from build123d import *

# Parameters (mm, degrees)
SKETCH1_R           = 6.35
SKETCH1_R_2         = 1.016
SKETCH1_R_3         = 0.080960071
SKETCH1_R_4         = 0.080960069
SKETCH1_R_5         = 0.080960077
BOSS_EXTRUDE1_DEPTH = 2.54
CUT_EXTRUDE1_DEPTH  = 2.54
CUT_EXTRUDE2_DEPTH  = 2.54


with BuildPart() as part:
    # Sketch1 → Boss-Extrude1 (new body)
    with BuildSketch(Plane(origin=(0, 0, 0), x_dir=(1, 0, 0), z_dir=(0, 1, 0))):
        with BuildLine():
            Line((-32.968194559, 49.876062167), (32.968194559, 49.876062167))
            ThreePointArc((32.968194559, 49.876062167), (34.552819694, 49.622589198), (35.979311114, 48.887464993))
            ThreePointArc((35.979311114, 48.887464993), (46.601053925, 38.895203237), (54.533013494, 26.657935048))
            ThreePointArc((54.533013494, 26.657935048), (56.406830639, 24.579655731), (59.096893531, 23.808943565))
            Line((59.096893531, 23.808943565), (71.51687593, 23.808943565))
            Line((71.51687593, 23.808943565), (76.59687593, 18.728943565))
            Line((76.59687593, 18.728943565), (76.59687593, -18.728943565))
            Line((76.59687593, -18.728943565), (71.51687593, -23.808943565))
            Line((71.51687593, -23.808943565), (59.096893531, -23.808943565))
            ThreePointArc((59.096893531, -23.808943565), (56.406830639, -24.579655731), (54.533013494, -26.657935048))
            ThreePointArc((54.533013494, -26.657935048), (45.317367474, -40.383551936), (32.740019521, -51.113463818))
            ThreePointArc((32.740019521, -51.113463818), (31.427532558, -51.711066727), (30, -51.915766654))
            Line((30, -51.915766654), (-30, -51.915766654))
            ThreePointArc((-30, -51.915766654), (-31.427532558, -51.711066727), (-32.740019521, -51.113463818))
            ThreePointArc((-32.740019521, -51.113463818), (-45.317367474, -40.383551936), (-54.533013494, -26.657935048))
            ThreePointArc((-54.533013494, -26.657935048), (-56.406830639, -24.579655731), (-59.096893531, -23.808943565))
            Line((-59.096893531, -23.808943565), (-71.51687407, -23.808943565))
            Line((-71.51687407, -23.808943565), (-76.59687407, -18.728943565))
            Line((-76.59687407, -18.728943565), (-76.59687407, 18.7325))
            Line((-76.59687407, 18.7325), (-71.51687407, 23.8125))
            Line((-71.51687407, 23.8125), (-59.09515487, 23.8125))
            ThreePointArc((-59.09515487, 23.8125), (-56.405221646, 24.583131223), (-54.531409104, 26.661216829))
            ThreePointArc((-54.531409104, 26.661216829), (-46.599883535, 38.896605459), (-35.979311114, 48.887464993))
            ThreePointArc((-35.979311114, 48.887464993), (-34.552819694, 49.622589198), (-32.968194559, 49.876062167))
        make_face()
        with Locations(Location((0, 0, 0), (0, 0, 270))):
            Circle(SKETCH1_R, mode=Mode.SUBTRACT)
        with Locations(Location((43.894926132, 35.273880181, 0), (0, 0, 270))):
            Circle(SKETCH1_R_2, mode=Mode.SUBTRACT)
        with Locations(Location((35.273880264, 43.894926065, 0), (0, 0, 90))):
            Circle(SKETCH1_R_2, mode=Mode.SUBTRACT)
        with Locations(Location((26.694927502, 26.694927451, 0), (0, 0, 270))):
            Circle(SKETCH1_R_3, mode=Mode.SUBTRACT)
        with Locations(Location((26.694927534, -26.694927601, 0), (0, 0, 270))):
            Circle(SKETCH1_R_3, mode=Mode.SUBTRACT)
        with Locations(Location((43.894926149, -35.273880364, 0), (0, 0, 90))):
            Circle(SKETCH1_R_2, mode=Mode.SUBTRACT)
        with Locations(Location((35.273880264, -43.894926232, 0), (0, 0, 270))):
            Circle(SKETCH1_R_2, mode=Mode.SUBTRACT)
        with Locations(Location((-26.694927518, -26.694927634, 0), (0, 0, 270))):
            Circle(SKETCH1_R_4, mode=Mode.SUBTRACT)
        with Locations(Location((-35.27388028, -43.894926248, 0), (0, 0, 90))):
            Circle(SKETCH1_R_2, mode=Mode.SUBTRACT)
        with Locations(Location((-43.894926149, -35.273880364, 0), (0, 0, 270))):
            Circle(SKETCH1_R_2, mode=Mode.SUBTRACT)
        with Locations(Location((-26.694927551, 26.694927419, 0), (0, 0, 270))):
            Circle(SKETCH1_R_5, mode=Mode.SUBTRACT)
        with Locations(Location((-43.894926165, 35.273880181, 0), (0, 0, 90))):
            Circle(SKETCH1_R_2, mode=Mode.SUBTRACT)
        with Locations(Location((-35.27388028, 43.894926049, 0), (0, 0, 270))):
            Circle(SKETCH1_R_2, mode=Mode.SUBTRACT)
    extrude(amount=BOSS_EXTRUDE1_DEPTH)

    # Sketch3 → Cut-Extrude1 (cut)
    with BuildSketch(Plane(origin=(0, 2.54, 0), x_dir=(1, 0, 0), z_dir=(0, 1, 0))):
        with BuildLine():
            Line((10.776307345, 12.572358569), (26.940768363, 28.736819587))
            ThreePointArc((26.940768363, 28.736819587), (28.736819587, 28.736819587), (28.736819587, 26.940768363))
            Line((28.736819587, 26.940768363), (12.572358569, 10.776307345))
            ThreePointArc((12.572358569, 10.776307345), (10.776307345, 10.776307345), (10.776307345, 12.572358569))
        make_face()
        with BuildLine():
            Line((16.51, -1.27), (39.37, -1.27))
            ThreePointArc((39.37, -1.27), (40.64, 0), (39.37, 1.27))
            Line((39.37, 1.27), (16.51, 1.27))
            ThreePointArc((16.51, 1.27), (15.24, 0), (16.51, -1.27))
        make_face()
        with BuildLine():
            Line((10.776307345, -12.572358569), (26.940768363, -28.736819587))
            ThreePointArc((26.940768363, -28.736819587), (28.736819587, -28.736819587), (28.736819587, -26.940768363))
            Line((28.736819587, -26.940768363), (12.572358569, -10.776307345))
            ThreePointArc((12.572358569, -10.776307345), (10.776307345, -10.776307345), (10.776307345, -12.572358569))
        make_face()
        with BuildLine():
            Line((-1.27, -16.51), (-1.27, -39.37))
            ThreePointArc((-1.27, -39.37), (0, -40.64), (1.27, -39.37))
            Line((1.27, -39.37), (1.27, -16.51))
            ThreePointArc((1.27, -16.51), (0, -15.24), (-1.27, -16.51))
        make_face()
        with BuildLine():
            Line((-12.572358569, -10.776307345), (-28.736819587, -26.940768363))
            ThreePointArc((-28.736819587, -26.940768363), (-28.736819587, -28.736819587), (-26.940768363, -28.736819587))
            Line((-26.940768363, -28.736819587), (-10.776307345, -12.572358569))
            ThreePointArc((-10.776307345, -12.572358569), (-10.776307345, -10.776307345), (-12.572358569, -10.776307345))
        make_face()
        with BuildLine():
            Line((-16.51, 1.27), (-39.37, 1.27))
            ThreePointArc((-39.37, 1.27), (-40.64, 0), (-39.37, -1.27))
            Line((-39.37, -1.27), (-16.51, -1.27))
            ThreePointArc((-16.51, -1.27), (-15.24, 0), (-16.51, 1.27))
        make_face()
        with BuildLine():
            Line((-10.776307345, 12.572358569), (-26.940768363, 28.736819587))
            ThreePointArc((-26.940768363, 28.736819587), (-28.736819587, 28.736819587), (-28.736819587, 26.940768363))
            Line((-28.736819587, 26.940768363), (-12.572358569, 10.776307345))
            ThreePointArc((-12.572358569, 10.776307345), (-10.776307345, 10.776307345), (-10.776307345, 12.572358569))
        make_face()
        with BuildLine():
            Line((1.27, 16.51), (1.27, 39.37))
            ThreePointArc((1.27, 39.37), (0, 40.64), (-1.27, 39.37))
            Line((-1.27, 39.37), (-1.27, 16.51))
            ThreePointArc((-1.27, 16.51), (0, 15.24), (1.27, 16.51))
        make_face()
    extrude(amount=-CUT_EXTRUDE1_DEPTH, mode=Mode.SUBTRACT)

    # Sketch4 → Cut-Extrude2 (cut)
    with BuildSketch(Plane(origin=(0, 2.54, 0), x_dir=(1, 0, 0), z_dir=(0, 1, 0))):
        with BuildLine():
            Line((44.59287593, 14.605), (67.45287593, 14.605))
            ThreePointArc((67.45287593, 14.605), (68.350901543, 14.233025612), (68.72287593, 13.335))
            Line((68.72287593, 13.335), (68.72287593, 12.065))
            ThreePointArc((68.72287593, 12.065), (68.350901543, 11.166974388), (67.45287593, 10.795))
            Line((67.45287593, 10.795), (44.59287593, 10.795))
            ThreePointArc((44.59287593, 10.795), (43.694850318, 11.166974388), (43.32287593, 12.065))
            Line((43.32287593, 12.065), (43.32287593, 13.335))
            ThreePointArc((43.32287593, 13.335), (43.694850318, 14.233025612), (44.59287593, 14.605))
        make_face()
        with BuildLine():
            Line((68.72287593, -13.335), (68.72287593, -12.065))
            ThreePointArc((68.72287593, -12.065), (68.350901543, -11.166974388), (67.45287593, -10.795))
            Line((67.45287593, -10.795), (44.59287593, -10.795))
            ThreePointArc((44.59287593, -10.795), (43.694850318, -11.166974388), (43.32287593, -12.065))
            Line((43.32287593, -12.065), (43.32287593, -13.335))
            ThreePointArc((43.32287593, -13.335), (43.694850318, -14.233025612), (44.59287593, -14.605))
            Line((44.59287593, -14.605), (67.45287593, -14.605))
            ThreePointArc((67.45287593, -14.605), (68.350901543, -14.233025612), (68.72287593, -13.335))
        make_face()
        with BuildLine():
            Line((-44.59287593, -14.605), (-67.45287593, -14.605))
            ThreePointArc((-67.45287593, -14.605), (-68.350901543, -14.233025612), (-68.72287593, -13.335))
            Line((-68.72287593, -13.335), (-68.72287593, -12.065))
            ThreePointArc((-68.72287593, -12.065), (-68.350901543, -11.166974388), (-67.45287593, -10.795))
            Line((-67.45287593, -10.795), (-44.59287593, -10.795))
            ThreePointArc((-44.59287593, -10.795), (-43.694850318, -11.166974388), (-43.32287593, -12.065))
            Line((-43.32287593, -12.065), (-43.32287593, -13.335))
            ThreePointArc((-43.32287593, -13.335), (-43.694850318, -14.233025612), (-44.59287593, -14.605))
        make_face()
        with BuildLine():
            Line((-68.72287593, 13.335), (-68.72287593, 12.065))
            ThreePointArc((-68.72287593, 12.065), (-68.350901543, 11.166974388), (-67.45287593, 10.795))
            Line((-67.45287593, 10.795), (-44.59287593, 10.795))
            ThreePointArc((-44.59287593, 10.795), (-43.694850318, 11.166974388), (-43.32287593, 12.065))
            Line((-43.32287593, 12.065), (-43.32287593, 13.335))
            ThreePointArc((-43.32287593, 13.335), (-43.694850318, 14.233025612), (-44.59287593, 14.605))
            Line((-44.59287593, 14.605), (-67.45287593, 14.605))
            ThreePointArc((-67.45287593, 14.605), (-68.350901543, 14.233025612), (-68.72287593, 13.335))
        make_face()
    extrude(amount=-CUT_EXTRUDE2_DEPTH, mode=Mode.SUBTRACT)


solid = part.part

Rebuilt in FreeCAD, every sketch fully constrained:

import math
import FreeCAD as App
import Part
import Sketcher
from FreeCAD import Vector
Q = App.Units.Quantity

doc = App.newDocument("Part")
body = doc.addObject("PartDesign::Body", "Body")

sketch1 = doc.addObject("Sketcher::SketchObject", "Sketch")
body.addObject(sketch1)
sketch1.AttachmentSupport = (doc.XZ_Plane, [""])
sketch1.MapMode = "FlatFace"
sketch1.addGeometry(Part.LineSegment(Vector(32.97, -49.88, 0), Vector(-32.97, -49.88, 0)), False)
sketch1.addGeometry(Part.ArcOfCircle(Part.Circle(Vector(-32.97, -44.8, 0), Vector(0, 0, 1), 5.08), math.radians(-126), math.radians(-90)), False)
sketch1.addGeometry(Part.ArcOfCircle(Part.Circle(Vector(0, 0, 0), Vector(0, 0, 1), 60.7), math.radians(-154), math.radians(-126)), False)
sketch1.addGeometry(Part.ArcOfCircle(Part.Circle(Vector(-59.1, -28.89, 0), Vector(0, 0, 1), 5.08), math.radians(26), math.radians(90)), False)
sketch1.addGeometry(Part.LineSegment(Vector(-59.1, -23.81, 0), Vector(-71.52, -23.81, 0)), False)
sketch1.addGeometry(Part.LineSegment(Vector(-71.52, -23.81, 0), Vector(-76.6, -18.73, 0)), False)
sketch1.addGeometry(Part.LineSegment(Vector(-76.6, -18.73, 0), Vector(-76.6, 18.73, 0)), False)
sketch1.addGeometry(Part.LineSegment(Vector(-76.6, 18.73, 0), Vector(-71.52, 23.81, 0)), False)
sketch1.addGeometry(Part.LineSegment(Vector(-71.52, 23.81, 0), Vector(-59.1, 23.81, 0)), False)
sketch1.addGeometry(Part.ArcOfCircle(Part.Circle(Vector(-59.1, 28.89, 0), Vector(0, 0, 1), 5.08), math.radians(-90), math.radians(-26)), False)
sketch1.addGeometry(Part.ArcOfCircle(Part.Circle(Vector(0, 0, 0), Vector(0, 0, 1), 60.7), math.radians(123), math.radians(154)), False)
sketch1.addGeometry(Part.ArcOfCircle(Part.Circle(Vector(-30, 46.84, 0), Vector(0, 0, 1), 5.08), math.radians(90), math.radians(123)), False)
sketch1.addGeometry(Part.LineSegment(Vector(-30, 51.92, 0), Vector(30, 51.92, 0)), False)
sketch1.addGeometry(Part.ArcOfCircle(Part.Circle(Vector(30, 46.84, 0), Vector(0, 0, 1), 5.08), math.radians(57), math.radians(90)), False)
sketch1.addGeometry(Part.ArcOfCircle(Part.Circle(Vector(0, 0, 0), Vector(0, 0, 1), 60.7), math.radians(26), math.radians(57)), False)
sketch1.addGeometry(Part.ArcOfCircle(Part.Circle(Vector(59.1, 28.89, 0), Vector(0, 0, 1), 5.08), math.radians(-154), math.radians(-90)), False)
sketch1.addGeometry(Part.LineSegment(Vector(59.1, 23.81, 0), Vector(71.52, 23.81, 0)), False)
sketch1.addGeometry(Part.LineSegment(Vector(71.52, 23.81, 0), Vector(76.6, 18.73, 0)), False)
sketch1.addGeometry(Part.LineSegment(Vector(76.6, 18.73, 0), Vector(76.6, -18.73, 0)), False)
sketch1.addGeometry(Part.LineSegment(Vector(76.6, -18.73, 0), Vector(71.52, -23.81, 0)), False)
sketch1.addGeometry(Part.LineSegment(Vector(71.52, -23.81, 0), Vector(59.1, -23.81, 0)), False)
sketch1.addGeometry(Part.ArcOfCircle(Part.Circle(Vector(59.1, -28.89, 0), Vector(0, 0, 1), 5.08), math.radians(90), math.radians(154)), False)
sketch1.addGeometry(Part.ArcOfCircle(Part.Circle(Vector(0, 0, 0), Vector(0, 0, 1), 60.7), math.radians(-54), math.radians(-26)), False)
sketch1.addGeometry(Part.ArcOfCircle(Part.Circle(Vector(32.97, -44.8, 0), Vector(0, 0, 1), 5.08), math.radians(-90), math.radians(-54)), False)
sketch1.addGeometry(Part.Circle(Vector(35.27, 43.89, 0), Vector(0, 0, 1), 1.02), False)
sketch1.addGeometry(Part.Circle(Vector(43.89, 35.27, 0), Vector(0, 0, 1), 1.02), False)
sketch1.addGeometry(Part.Circle(Vector(26.69, 26.69, 0), Vector(0, 0, 1), 0.08), False)
sketch1.addGeometry(Part.Circle(Vector(-35.27, 43.89, 0), Vector(0, 0, 1), 1.02), False)
sketch1.addGeometry(Part.Circle(Vector(-43.89, 35.27, 0), Vector(0, 0, 1), 1.02), False)
sketch1.addGeometry(Part.Circle(Vector(-26.69, 26.69, 0), Vector(0, 0, 1), 0.08), False)
sketch1.addGeometry(Part.Circle(Vector(0, 0, 0), Vector(0, 0, 1), 6.35), False)
sketch1.addGeometry(Part.Circle(Vector(26.69, -26.69, 0), Vector(0, 0, 1), 0.08), False)
sketch1.addGeometry(Part.Circle(Vector(43.89, -35.27, 0), Vector(0, 0, 1), 1.02), False)
sketch1.addGeometry(Part.Circle(Vector(35.27, -43.89, 0), Vector(0, 0, 1), 1.02), False)
sketch1.addGeometry(Part.Circle(Vector(-26.69, -26.69, 0), Vector(0, 0, 1), 0.08), False)
sketch1.addGeometry(Part.Circle(Vector(-43.89, -35.27, 0), Vector(0, 0, 1), 1.02), False)
sketch1.addGeometry(Part.Circle(Vector(-35.27, -43.89, 0), Vector(0, 0, 1), 1.02), False)
sketch1.addConstraint(Sketcher.Constraint("Tangent", 0, 2, 1, 2))
sketch1.addConstraint(Sketcher.Constraint("Tangent", 1, 1, 2, 2))
sketch1.addConstraint(Sketcher.Constraint("Tangent", 2, 1, 3, 1))
sketch1.addConstraint(Sketcher.Constraint("Tangent", 3, 2, 4, 1))
sketch1.addConstraint(Sketcher.Constraint("Coincident", 4, 2, 5, 1))
sketch1.addConstraint(Sketcher.Constraint("Coincident", 5, 2, 6, 1))
sketch1.addConstraint(Sketcher.Constraint("Coincident", 6, 2, 7, 1))
sketch1.addConstraint(Sketcher.Constraint("Coincident", 7, 2, 8, 1))
sketch1.addConstraint(Sketcher.Constraint("Tangent", 8, 2, 9, 1))
sketch1.addConstraint(Sketcher.Constraint("Tangent", 9, 2, 10, 2))
sketch1.addConstraint(Sketcher.Constraint("Tangent", 10, 1, 11, 2))
sketch1.addConstraint(Sketcher.Constraint("Tangent", 11, 1, 12, 1))
sketch1.addConstraint(Sketcher.Constraint("Tangent", 12, 2, 13, 2))
sketch1.addConstraint(Sketcher.Constraint("Tangent", 13, 1, 14, 2))
sketch1.addConstraint(Sketcher.Constraint("Tangent", 14, 1, 15, 1))
sketch1.addConstraint(Sketcher.Constraint("Tangent", 15, 2, 16, 1))
sketch1.addConstraint(Sketcher.Constraint("Coincident", 16, 2, 17, 1))
sketch1.addConstraint(Sketcher.Constraint("Coincident", 17, 2, 18, 1))
sketch1.addConstraint(Sketcher.Constraint("Coincident", 18, 2, 19, 1))
sketch1.addConstraint(Sketcher.Constraint("Coincident", 19, 2, 20, 1))
sketch1.addConstraint(Sketcher.Constraint("Tangent", 20, 2, 21, 1))
sketch1.addConstraint(Sketcher.Constraint("Tangent", 21, 2, 22, 2))
sketch1.addConstraint(Sketcher.Constraint("Tangent", 22, 1, 23, 2))
sketch1.addConstraint(Sketcher.Constraint("Tangent", 23, 1, 0, 1))
sketch1.addConstraint(Sketcher.Constraint("Horizontal", 0))
sketch1.addConstraint(Sketcher.Constraint("Horizontal", 4))
sketch1.addConstraint(Sketcher.Constraint("Vertical", 6))
sketch1.addConstraint(Sketcher.Constraint("Horizontal", 8))
sketch1.addConstraint(Sketcher.Constraint("Horizontal", 12))
sketch1.addConstraint(Sketcher.Constraint("Horizontal", 16))
sketch1.addConstraint(Sketcher.Constraint("Vertical", 18))
sketch1.addConstraint(Sketcher.Constraint("Horizontal", 20))
sketch1.addConstraint(Sketcher.Constraint("Coincident", 2, 3, -1, 1))
sketch1.addConstraint(Sketcher.Constraint("Coincident", 10, 3, -1, 1))
sketch1.addConstraint(Sketcher.Constraint("Coincident", 14, 3, -1, 1))
sketch1.addConstraint(Sketcher.Constraint("Coincident", 22, 3, -1, 1))
sketch1.addConstraint(Sketcher.Constraint("Coincident", 30, 3, -1, 1))
sketch1.addConstraint(Sketcher.Constraint("Equal", 1, 3))
sketch1.addConstraint(Sketcher.Constraint("Equal", 3, 9))
sketch1.addConstraint(Sketcher.Constraint("Equal", 2, 10))
sketch1.addConstraint(Sketcher.Constraint("Equal", 9, 11))
sketch1.addConstraint(Sketcher.Constraint("Equal", 11, 13))
sketch1.addConstraint(Sketcher.Constraint("Equal", 10, 14))
sketch1.addConstraint(Sketcher.Constraint("Equal", 13, 15))
sketch1.addConstraint(Sketcher.Constraint("Equal", 15, 21))
sketch1.addConstraint(Sketcher.Constraint("Equal", 14, 22))
sketch1.addConstraint(Sketcher.Constraint("Equal", 21, 23))
sketch1.addConstraint(Sketcher.Constraint("Equal", 24, 25))
sketch1.addConstraint(Sketcher.Constraint("Equal", 25, 27))
sketch1.addConstraint(Sketcher.Constraint("Equal", 27, 28))
sketch1.addConstraint(Sketcher.Constraint("Equal", 26, 29))
sketch1.addConstraint(Sketcher.Constraint("Equal", 29, 31))
sketch1.addConstraint(Sketcher.Constraint("Equal", 28, 32))
sketch1.addConstraint(Sketcher.Constraint("Equal", 32, 33))
sketch1.addConstraint(Sketcher.Constraint("Equal", 31, 34))
sketch1.addConstraint(Sketcher.Constraint("Equal", 33, 35))
sketch1.addConstraint(Sketcher.Constraint("Equal", 35, 36))
sketch1.addConstraint(Sketcher.Constraint("Symmetric", 29, 3, 31, 3, -1, 1))
sketch1.addConstraint(Sketcher.Constraint("Symmetric", 28, 3, 32, 3, -1, 1))
sketch1.addConstraint(Sketcher.Constraint("Symmetric", 27, 3, 33, 3, -1, 1))
sketch1.addConstraint(Sketcher.Constraint("Symmetric", 26, 3, 34, 3, -1, 1))
sketch1.addConstraint(Sketcher.Constraint("Symmetric", 25, 3, 35, 3, -1, 1))
sketch1.addConstraint(Sketcher.Constraint("Symmetric", 24, 3, 36, 3, -1, 1))
sketch1.addConstraint(Sketcher.Constraint("Symmetric", 6, 2, 18, 2, -1, 1))
sketch1.addConstraint(Sketcher.Constraint("Symmetric", 7, 2, 19, 2, -1, 1))
sketch1.addConstraint(Sketcher.Constraint("Symmetric", 24, 3, 27, 3, -2))
sketch1.addConstraint(Sketcher.Constraint("Symmetric", 25, 3, 28, 3, -2))
sketch1.addConstraint(Sketcher.Constraint("Symmetric", 26, 3, 29, 3, -2))
sketch1.addConstraint(Sketcher.Constraint("Symmetric", 7, 2, 16, 2, -2))
sketch1.addConstraint(Sketcher.Constraint("Perpendicular", 5, 7))
sketch1.addConstraint(Sketcher.Constraint("Perpendicular", 7, 17))
sketch1.addConstraint(Sketcher.Constraint("Horizontal", 6, 2, 17, 2))
sketch1.addConstraint(Sketcher.Constraint("Vertical", 4, 2, 7, 2))
sketch1.addConstraint(Sketcher.Constraint("Diameter", 30, Q("0.5 in")))
sketch1.addConstraint(Sketcher.Constraint("Radius", 1, Q("0.2 in")))
sketch1.addConstraint(Sketcher.Constraint("Diameter", 24, Q("0.08 in")))
sketch1.addConstraint(Sketcher.Constraint("DistanceX", 5, 2, 4, 2, Q("0.2 in")))
sketch1.addConstraint(Sketcher.Constraint("Diameter", 26, Q("0.16192 mm")))
sketch1.addConstraint(Sketcher.Constraint("DistanceY", 3, 2, -1, 1, Q("0.9375 in")))
sketch1.addConstraint(Sketcher.Constraint("DistanceX", 5, 2, -1, 1, Q("3.015625 in")))
sketch1.addConstraint(Sketcher.Constraint("Radius", 2, Q("60.700042 mm")))
sketch1.addConstraint(Sketcher.Constraint("DistanceX", 12, 1, 12, 2, Q("60 mm")))
sketch1.addConstraint(Sketcher.Constraint("DistanceX", 0, 2, 0, 1, Q("65.936389 mm")))
sketch1.addConstraint(Sketcher.Constraint("DistanceX", 8, 1, 8, 2, Q("12.419981 mm")))
sketch1.addConstraint(Sketcher.Constraint("DistanceY", 26, 3, 24, 3, Q("17.199999 mm")))
sketch1.addConstraint(Sketcher.Constraint("DistanceX", 26, 3, 25, 3, Q("17.199999 mm")))
sketch1.addConstraint(Sketcher.Constraint("DistanceX", -1, 1, 24, 3, Q("35.27388 mm")))
sketch1.addConstraint(Sketcher.Constraint("DistanceY", -1, 1, 25, 3, Q("35.27388 mm")))
sketch1.addConstraint(Sketcher.Constraint("DistanceY", 24, 3, 13, 3, Q("2.94084 mm")))
sketch1.addConstraint(Sketcher.Constraint("DistanceX", 23, 3, 32, 3, Q("10.926732 mm")))
pad1 = doc.addObject("PartDesign::Pad", "Pad")
body.addObject(pad1)
pad1.Profile = sketch1
pad1.Length = Q("0.1 in")
pad1.Reversed = True

sketch2 = doc.addObject("Sketcher::SketchObject", "Sketch001")
body.addObject(sketch2)
sketch2.AttachmentSupport = (doc.XZ_Plane, [""])
sketch2.MapMode = "FlatFace"
sketch2.AttachmentOffset = App.Placement(Vector(0, 0, -0.1 * 25.4), App.Rotation())
sketch2.addGeometry(Part.LineSegment(Vector(26.9, -28.7, 0), Vector(10.8, -12.6, 0)), False)
sketch2.addGeometry(Part.ArcOfCircle(Part.Circle(Vector(11.7, -11.7, 0), Vector(0, 0, 1), 1.3), math.radians(45), math.radians(225)), False)
sketch2.addGeometry(Part.LineSegment(Vector(12.6, -10.8, 0), Vector(28.7, -26.9, 0)), False)
sketch2.addGeometry(Part.ArcOfCircle(Part.Circle(Vector(27.8, -27.8, 0), Vector(0, 0, 1), 1.3), math.radians(-135), math.radians(45)), False)
sketch2.addGeometry(Part.LineSegment(Vector(16.5, 1.3, 0), Vector(39.4, 1.3, 0)), False)
sketch2.addGeometry(Part.ArcOfCircle(Part.Circle(Vector(39.4, 0, 0), Vector(0, 0, 1), 1.3), math.radians(-90), math.radians(90)), False)
sketch2.addGeometry(Part.LineSegment(Vector(39.4, -1.3, 0), Vector(16.5, -1.3, 0)), False)
sketch2.addGeometry(Part.ArcOfCircle(Part.Circle(Vector(16.5, 0, 0), Vector(0, 0, 1), 1.3), math.radians(90), math.radians(270)), False)
sketch2.addGeometry(Part.LineSegment(Vector(10.8, 12.6, 0), Vector(26.9, 28.7, 0)), False)
sketch2.addGeometry(Part.ArcOfCircle(Part.Circle(Vector(27.8, 27.8, 0), Vector(0, 0, 1), 1.3), math.radians(-45), math.radians(135)), False)
sketch2.addGeometry(Part.LineSegment(Vector(28.7, 26.9, 0), Vector(12.6, 10.8, 0)), False)
sketch2.addGeometry(Part.ArcOfCircle(Part.Circle(Vector(11.7, 11.7, 0), Vector(0, 0, 1), 1.3), math.radians(135), math.radians(315)), False)
sketch2.addGeometry(Part.LineSegment(Vector(-1.3, 16.5, 0), Vector(-1.3, 39.4, 0)), False)
sketch2.addGeometry(Part.ArcOfCircle(Part.Circle(Vector(0, 39.4, 0), Vector(0, 0, 1), 1.3), math.radians(0), math.radians(180)), False)
sketch2.addGeometry(Part.LineSegment(Vector(1.3, 39.4, 0), Vector(1.3, 16.5, 0)), False)
sketch2.addGeometry(Part.ArcOfCircle(Part.Circle(Vector(0, 16.5, 0), Vector(0, 0, 1), 1.3), math.radians(180), math.radians(360)), False)
sketch2.addGeometry(Part.LineSegment(Vector(-12.6, 10.8, 0), Vector(-28.7, 26.9, 0)), False)
sketch2.addGeometry(Part.ArcOfCircle(Part.Circle(Vector(-27.8, 27.8, 0), Vector(0, 0, 1), 1.3), math.radians(45), math.radians(225)), False)
sketch2.addGeometry(Part.LineSegment(Vector(-26.9, 28.7, 0), Vector(-10.8, 12.6, 0)), False)
sketch2.addGeometry(Part.ArcOfCircle(Part.Circle(Vector(-11.7, 11.7, 0), Vector(0, 0, 1), 1.3), math.radians(-135), math.radians(45)), False)
sketch2.addGeometry(Part.LineSegment(Vector(-16.5, -1.3, 0), Vector(-39.4, -1.3, 0)), False)
sketch2.addGeometry(Part.ArcOfCircle(Part.Circle(Vector(-39.4, 0, 0), Vector(0, 0, 1), 1.3), math.radians(90), math.radians(270)), False)
sketch2.addGeometry(Part.LineSegment(Vector(-39.4, 1.3, 0), Vector(-16.5, 1.3, 0)), False)
sketch2.addGeometry(Part.ArcOfCircle(Part.Circle(Vector(-16.5, 0, 0), Vector(0, 0, 1), 1.3), math.radians(-90), math.radians(90)), False)
sketch2.addGeometry(Part.LineSegment(Vector(-10.8, -12.6, 0), Vector(-26.9, -28.7, 0)), False)
sketch2.addGeometry(Part.ArcOfCircle(Part.Circle(Vector(-27.8, -27.8, 0), Vector(0, 0, 1), 1.3), math.radians(135), math.radians(315)), False)
sketch2.addGeometry(Part.LineSegment(Vector(-28.7, -26.9, 0), Vector(-12.6, -10.8, 0)), False)
sketch2.addGeometry(Part.ArcOfCircle(Part.Circle(Vector(-11.7, -11.7, 0), Vector(0, 0, 1), 1.3), math.radians(-45), math.radians(135)), False)
sketch2.addGeometry(Part.LineSegment(Vector(1.3, -16.5, 0), Vector(1.3, -39.4, 0)), False)
sketch2.addGeometry(Part.ArcOfCircle(Part.Circle(Vector(0, -39.4, 0), Vector(0, 0, 1), 1.3), math.radians(180), math.radians(360)), False)
sketch2.addGeometry(Part.LineSegment(Vector(-1.3, -39.4, 0), Vector(-1.3, -16.5, 0)), False)
sketch2.addGeometry(Part.ArcOfCircle(Part.Circle(Vector(0, -16.5, 0), Vector(0, 0, 1), 1.3), math.radians(0), math.radians(180)), False)
sketch2.addConstraint(Sketcher.Constraint("Tangent", 0, 2, 1, 2))
sketch2.addConstraint(Sketcher.Constraint("Tangent", 1, 1, 2, 1))
sketch2.addConstraint(Sketcher.Constraint("Tangent", 2, 2, 3, 2))
sketch2.addConstraint(Sketcher.Constraint("Tangent", 3, 1, 0, 1))
sketch2.addConstraint(Sketcher.Constraint("Tangent", 4, 2, 5, 2))
sketch2.addConstraint(Sketcher.Constraint("Tangent", 5, 1, 6, 1))
sketch2.addConstraint(Sketcher.Constraint("Tangent", 6, 2, 7, 2))
sketch2.addConstraint(Sketcher.Constraint("Tangent", 7, 1, 4, 1))
sketch2.addConstraint(Sketcher.Constraint("Tangent", 8, 2, 9, 2))
sketch2.addConstraint(Sketcher.Constraint("Tangent", 9, 1, 10, 1))
sketch2.addConstraint(Sketcher.Constraint("Tangent", 10, 2, 11, 2))
sketch2.addConstraint(Sketcher.Constraint("Tangent", 11, 1, 8, 1))
sketch2.addConstraint(Sketcher.Constraint("Tangent", 12, 2, 13, 2))
sketch2.addConstraint(Sketcher.Constraint("Tangent", 13, 1, 14, 1))
sketch2.addConstraint(Sketcher.Constraint("Tangent", 14, 2, 15, 2))
sketch2.addConstraint(Sketcher.Constraint("Tangent", 15, 1, 12, 1))
sketch2.addConstraint(Sketcher.Constraint("Tangent", 16, 2, 17, 2))
sketch2.addConstraint(Sketcher.Constraint("Tangent", 17, 1, 18, 1))
sketch2.addConstraint(Sketcher.Constraint("Tangent", 18, 2, 19, 2))
sketch2.addConstraint(Sketcher.Constraint("Tangent", 19, 1, 16, 1))
sketch2.addConstraint(Sketcher.Constraint("Tangent", 20, 2, 21, 2))
sketch2.addConstraint(Sketcher.Constraint("Tangent", 21, 1, 22, 1))
sketch2.addConstraint(Sketcher.Constraint("Tangent", 22, 2, 23, 2))
sketch2.addConstraint(Sketcher.Constraint("Tangent", 23, 1, 20, 1))
sketch2.addConstraint(Sketcher.Constraint("Tangent", 24, 2, 25, 2))
sketch2.addConstraint(Sketcher.Constraint("Tangent", 25, 1, 26, 1))
sketch2.addConstraint(Sketcher.Constraint("Tangent", 26, 2, 27, 2))
sketch2.addConstraint(Sketcher.Constraint("Tangent", 27, 1, 24, 1))
sketch2.addConstraint(Sketcher.Constraint("Tangent", 28, 2, 29, 2))
sketch2.addConstraint(Sketcher.Constraint("Tangent", 29, 1, 30, 1))
sketch2.addConstraint(Sketcher.Constraint("Tangent", 30, 2, 31, 2))
sketch2.addConstraint(Sketcher.Constraint("Tangent", 31, 1, 28, 1))
sketch2.addConstraint(Sketcher.Constraint("Horizontal", 4))
sketch2.addConstraint(Sketcher.Constraint("Horizontal", 6))
sketch2.addConstraint(Sketcher.Constraint("Vertical", 12))
sketch2.addConstraint(Sketcher.Constraint("Vertical", 14))
sketch2.addConstraint(Sketcher.Constraint("Horizontal", 20))
sketch2.addConstraint(Sketcher.Constraint("Horizontal", 22))
sketch2.addConstraint(Sketcher.Constraint("Vertical", 28))
sketch2.addConstraint(Sketcher.Constraint("Vertical", 30))
sketch2.addConstraint(Sketcher.Constraint("Equal", 1, 3))
sketch2.addConstraint(Sketcher.Constraint("Equal", 3, 5))
sketch2.addConstraint(Sketcher.Constraint("Equal", 7, 9))
sketch2.addConstraint(Sketcher.Constraint("Equal", 9, 11))
sketch2.addConstraint(Sketcher.Constraint("Equal", 11, 13))
sketch2.addConstraint(Sketcher.Constraint("Equal", 15, 17))
sketch2.addConstraint(Sketcher.Constraint("Equal", 17, 19))
sketch2.addConstraint(Sketcher.Constraint("Equal", 19, 21))
sketch2.addConstraint(Sketcher.Constraint("Equal", 23, 25))
sketch2.addConstraint(Sketcher.Constraint("Equal", 25, 27))
sketch2.addConstraint(Sketcher.Constraint("Equal", 27, 29))
sketch2.addConstraint(Sketcher.Constraint("Symmetric", 3, 3, 17, 3, -1, 1))
sketch2.addConstraint(Sketcher.Constraint("Symmetric", 1, 3, 19, 3, -1, 1))
sketch2.addConstraint(Sketcher.Constraint("Symmetric", 5, 3, 21, 3, -1, 1))
sketch2.addConstraint(Sketcher.Constraint("Symmetric", 9, 3, 25, 3, -1, 1))
sketch2.addConstraint(Sketcher.Constraint("Symmetric", 11, 3, 27, 3, -1, 1))
sketch2.addConstraint(Sketcher.Constraint("Symmetric", 13, 3, 29, 3, -1, 1))
sketch2.addConstraint(Sketcher.Constraint("Symmetric", 9, 3, 17, 3, -2))
sketch2.addConstraint(Sketcher.Constraint("Symmetric", 11, 3, 19, 3, -2))
sketch2.addConstraint(Sketcher.Constraint("Symmetric", 7, 3, 23, 3, -2))
sketch2.addConstraint(Sketcher.Constraint("Symmetric", 15, 3, 31, 3, -1))
sketch2.addConstraint(Sketcher.Constraint("Perpendicular", 2, 8))
sketch2.addConstraint(Sketcher.Constraint("Equal", 22, 12))
sketch2.addConstraint(Sketcher.Constraint("Radius", 1, Q("0.05 in")))
sketch2.addConstraint(Sketcher.Constraint("DistanceX", 4, 1, 4, 2, Q("0.9 in")))
sketch2.addConstraint(Sketcher.Constraint("Distance", 0, Q("0.9 in")))
sketch2.addConstraint(Sketcher.Constraint("DistanceX", -1, 1, 5, 3, Q("1.55 in")))
sketch2.addConstraint(Sketcher.Constraint("DistanceY", -1, 1, 13, 3, Q("1.55 in")))
sketch2.addConstraint(Sketcher.Constraint("DistanceY", 0, 2, -1, 1, Q("12.572359 mm")))
sketch2.addConstraint(Sketcher.Constraint("DistanceX", -1, 1, 1, 1, Q("12.572359 mm")))
pocket1 = doc.addObject("PartDesign::Pocket", "Pocket")
body.addObject(pocket1)
pocket1.Profile = sketch2
pocket1.Length = Q("0.1 in")
pocket1.Reversed = True

sketch3 = doc.addObject("Sketcher::SketchObject", "Sketch002")
body.addObject(sketch3)
sketch3.AttachmentSupport = (doc.XZ_Plane, [""])
sketch3.MapMode = "FlatFace"
sketch3.AttachmentOffset = App.Placement(Vector(0, 0, -0.1 * 25.4), App.Rotation())
sketch3.addGeometry(Part.LineSegment(Vector(67.5, -14.6, 0), Vector(44.6, -14.6, 0)), False)
sketch3.addGeometry(Part.ArcOfCircle(Part.Circle(Vector(44.6, -13.3, 0), Vector(0, 0, 1), 1.3), math.radians(180), math.radians(270)), False)
sketch3.addGeometry(Part.LineSegment(Vector(43.3, -13.3, 0), Vector(43.3, -12.1, 0)), False)
sketch3.addGeometry(Part.ArcOfCircle(Part.Circle(Vector(44.6, -12.1, 0), Vector(0, 0, 1), 1.3), math.radians(90), math.radians(180)), False)
sketch3.addGeometry(Part.LineSegment(Vector(44.6, -10.8, 0), Vector(67.5, -10.8, 0)), False)
sketch3.addGeometry(Part.ArcOfCircle(Part.Circle(Vector(67.5, -12.1, 0), Vector(0, 0, 1), 1.3), math.radians(0), math.radians(90)), False)
sketch3.addGeometry(Part.LineSegment(Vector(68.7, -12.1, 0), Vector(68.7, -13.3, 0)), False)
sketch3.addGeometry(Part.ArcOfCircle(Part.Circle(Vector(67.5, -13.3, 0), Vector(0, 0, 1), 1.3), math.radians(-90), math.radians(0)), False)
sketch3.addGeometry(Part.LineSegment(Vector(68.7, 13.3, 0), Vector(68.7, 12.1, 0)), False)
sketch3.addGeometry(Part.ArcOfCircle(Part.Circle(Vector(67.5, 12.1, 0), Vector(0, 0, 1), 1.3), math.radians(-90), math.radians(0)), False)
sketch3.addGeometry(Part.LineSegment(Vector(67.5, 10.8, 0), Vector(44.6, 10.8, 0)), False)
sketch3.addGeometry(Part.ArcOfCircle(Part.Circle(Vector(44.6, 12.1, 0), Vector(0, 0, 1), 1.3), math.radians(180), math.radians(270)), False)
sketch3.addGeometry(Part.LineSegment(Vector(43.3, 12.1, 0), Vector(43.3, 13.3, 0)), False)
sketch3.addGeometry(Part.ArcOfCircle(Part.Circle(Vector(44.6, 13.3, 0), Vector(0, 0, 1), 1.3), math.radians(90), math.radians(180)), False)
sketch3.addGeometry(Part.LineSegment(Vector(44.6, 14.6, 0), Vector(67.5, 14.6, 0)), False)
sketch3.addGeometry(Part.ArcOfCircle(Part.Circle(Vector(67.5, 13.3, 0), Vector(0, 0, 1), 1.3), math.radians(0), math.radians(90)), False)
sketch3.addGeometry(Part.LineSegment(Vector(-67.5, 14.6, 0), Vector(-44.6, 14.6, 0)), False)
sketch3.addGeometry(Part.ArcOfCircle(Part.Circle(Vector(-44.6, 13.3, 0), Vector(0, 0, 1), 1.3), math.radians(0), math.radians(90)), False)
sketch3.addGeometry(Part.LineSegment(Vector(-43.3, 13.3, 0), Vector(-43.3, 12.1, 0)), False)
sketch3.addGeometry(Part.ArcOfCircle(Part.Circle(Vector(-44.6, 12.1, 0), Vector(0, 0, 1), 1.3), math.radians(-90), math.radians(0)), False)
sketch3.addGeometry(Part.LineSegment(Vector(-44.6, 10.8, 0), Vector(-67.5, 10.8, 0)), False)
sketch3.addGeometry(Part.ArcOfCircle(Part.Circle(Vector(-67.5, 12.1, 0), Vector(0, 0, 1), 1.3), math.radians(180), math.radians(270)), False)
sketch3.addGeometry(Part.LineSegment(Vector(-68.7, 12.1, 0), Vector(-68.7, 13.3, 0)), False)
sketch3.addGeometry(Part.ArcOfCircle(Part.Circle(Vector(-67.5, 13.3, 0), Vector(0, 0, 1), 1.3), math.radians(90), math.radians(180)), False)
sketch3.addGeometry(Part.LineSegment(Vector(-68.7, -13.3, 0), Vector(-68.7, -12.1, 0)), False)
sketch3.addGeometry(Part.ArcOfCircle(Part.Circle(Vector(-67.5, -12.1, 0), Vector(0, 0, 1), 1.3), math.radians(90), math.radians(180)), False)
sketch3.addGeometry(Part.LineSegment(Vector(-67.5, -10.8, 0), Vector(-44.6, -10.8, 0)), False)
sketch3.addGeometry(Part.ArcOfCircle(Part.Circle(Vector(-44.6, -12.1, 0), Vector(0, 0, 1), 1.3), math.radians(0), math.radians(90)), False)
sketch3.addGeometry(Part.LineSegment(Vector(-43.3, -12.1, 0), Vector(-43.3, -13.3, 0)), False)
sketch3.addGeometry(Part.ArcOfCircle(Part.Circle(Vector(-44.6, -13.3, 0), Vector(0, 0, 1), 1.3), math.radians(-90), math.radians(0)), False)
sketch3.addGeometry(Part.LineSegment(Vector(-44.6, -14.6, 0), Vector(-67.5, -14.6, 0)), False)
sketch3.addGeometry(Part.ArcOfCircle(Part.Circle(Vector(-67.5, -13.3, 0), Vector(0, 0, 1), 1.3), math.radians(180), math.radians(270)), False)
sketch3.addConstraint(Sketcher.Constraint("Tangent", 0, 2, 1, 2))
sketch3.addConstraint(Sketcher.Constraint("Tangent", 1, 1, 2, 1))
sketch3.addConstraint(Sketcher.Constraint("Tangent", 2, 2, 3, 2))
sketch3.addConstraint(Sketcher.Constraint("Tangent", 3, 1, 4, 1))
sketch3.addConstraint(Sketcher.Constraint("Tangent", 4, 2, 5, 2))
sketch3.addConstraint(Sketcher.Constraint("Tangent", 5, 1, 6, 1))
sketch3.addConstraint(Sketcher.Constraint("Tangent", 6, 2, 7, 2))
sketch3.addConstraint(Sketcher.Constraint("Tangent", 7, 1, 0, 1))
sketch3.addConstraint(Sketcher.Constraint("Tangent", 8, 2, 9, 2))
sketch3.addConstraint(Sketcher.Constraint("Tangent", 9, 1, 10, 1))
sketch3.addConstraint(Sketcher.Constraint("Tangent", 10, 2, 11, 2))
sketch3.addConstraint(Sketcher.Constraint("Tangent", 11, 1, 12, 1))
sketch3.addConstraint(Sketcher.Constraint("Tangent", 12, 2, 13, 2))
sketch3.addConstraint(Sketcher.Constraint("Tangent", 13, 1, 14, 1))
sketch3.addConstraint(Sketcher.Constraint("Tangent", 14, 2, 15, 2))
sketch3.addConstraint(Sketcher.Constraint("Tangent", 15, 1, 8, 1))
sketch3.addConstraint(Sketcher.Constraint("Tangent", 16, 2, 17, 2))
sketch3.addConstraint(Sketcher.Constraint("Tangent", 17, 1, 18, 1))
sketch3.addConstraint(Sketcher.Constraint("Tangent", 18, 2, 19, 2))
sketch3.addConstraint(Sketcher.Constraint("Tangent", 19, 1, 20, 1))
sketch3.addConstraint(Sketcher.Constraint("Tangent", 20, 2, 21, 2))
sketch3.addConstraint(Sketcher.Constraint("Tangent", 21, 1, 22, 1))
sketch3.addConstraint(Sketcher.Constraint("Tangent", 22, 2, 23, 2))
sketch3.addConstraint(Sketcher.Constraint("Tangent", 23, 1, 16, 1))
sketch3.addConstraint(Sketcher.Constraint("Tangent", 24, 2, 25, 2))
sketch3.addConstraint(Sketcher.Constraint("Tangent", 25, 1, 26, 1))
sketch3.addConstraint(Sketcher.Constraint("Tangent", 26, 2, 27, 2))
sketch3.addConstraint(Sketcher.Constraint("Tangent", 27, 1, 28, 1))
sketch3.addConstraint(Sketcher.Constraint("Tangent", 28, 2, 29, 2))
sketch3.addConstraint(Sketcher.Constraint("Tangent", 29, 1, 30, 1))
sketch3.addConstraint(Sketcher.Constraint("Tangent", 30, 2, 31, 2))
sketch3.addConstraint(Sketcher.Constraint("Tangent", 31, 1, 24, 1))
sketch3.addConstraint(Sketcher.Constraint("Horizontal", 0))
sketch3.addConstraint(Sketcher.Constraint("Vertical", 2))
sketch3.addConstraint(Sketcher.Constraint("Horizontal", 4))
sketch3.addConstraint(Sketcher.Constraint("Vertical", 6))
sketch3.addConstraint(Sketcher.Constraint("Vertical", 8))
sketch3.addConstraint(Sketcher.Constraint("Horizontal", 10))
sketch3.addConstraint(Sketcher.Constraint("Vertical", 12))
sketch3.addConstraint(Sketcher.Constraint("Horizontal", 14))
sketch3.addConstraint(Sketcher.Constraint("Horizontal", 16))
sketch3.addConstraint(Sketcher.Constraint("Vertical", 18))
sketch3.addConstraint(Sketcher.Constraint("Horizontal", 20))
sketch3.addConstraint(Sketcher.Constraint("Vertical", 22))
sketch3.addConstraint(Sketcher.Constraint("Vertical", 24))
sketch3.addConstraint(Sketcher.Constraint("Horizontal", 26))
sketch3.addConstraint(Sketcher.Constraint("Vertical", 28))
sketch3.addConstraint(Sketcher.Constraint("Horizontal", 30))
sketch3.addConstraint(Sketcher.Constraint("Equal", 1, 3))
sketch3.addConstraint(Sketcher.Constraint("Equal", 3, 5))
sketch3.addConstraint(Sketcher.Constraint("Equal", 5, 7))
sketch3.addConstraint(Sketcher.Constraint("Equal", 7, 9))
sketch3.addConstraint(Sketcher.Constraint("Equal", 9, 11))
sketch3.addConstraint(Sketcher.Constraint("Equal", 11, 13))
sketch3.addConstraint(Sketcher.Constraint("Equal", 13, 15))
sketch3.addConstraint(Sketcher.Constraint("Equal", 15, 17))
sketch3.addConstraint(Sketcher.Constraint("Equal", 17, 19))
sketch3.addConstraint(Sketcher.Constraint("Equal", 19, 21))
sketch3.addConstraint(Sketcher.Constraint("Equal", 21, 23))
sketch3.addConstraint(Sketcher.Constraint("Equal", 23, 25))
sketch3.addConstraint(Sketcher.Constraint("Equal", 25, 27))
sketch3.addConstraint(Sketcher.Constraint("Equal", 27, 29))
sketch3.addConstraint(Sketcher.Constraint("Equal", 29, 31))
sketch3.addConstraint(Sketcher.Constraint("Symmetric", 1, 3, 17, 3, -1, 1))
sketch3.addConstraint(Sketcher.Constraint("Symmetric", 5, 3, 21, 3, -1, 1))
sketch3.addConstraint(Sketcher.Constraint("Symmetric", 9, 3, 25, 3, -1, 1))
sketch3.addConstraint(Sketcher.Constraint("Symmetric", 13, 3, 29, 3, -1, 1))
sketch3.addConstraint(Sketcher.Constraint("Symmetric", 13, 3, 17, 3, -2))
sketch3.addConstraint(Sketcher.Constraint("Symmetric", 9, 3, 21, 3, -2))
sketch3.addConstraint(Sketcher.Constraint("Radius", 1, Q("0.05 in")))
sketch3.addConstraint(Sketcher.Constraint("DistanceX", 0, 2, 0, 1, Q("0.9 in")))
sketch3.addConstraint(Sketcher.Constraint("DistanceY", 7, 3, 9, 3, Q("1 in")))
sketch3.addConstraint(Sketcher.Constraint("DistanceY", 2, 1, 2, 2, Q("0.05 in")))
sketch3.addConstraint(Sketcher.Constraint("DistanceX", 17, 3, 13, 3, Q("89.185752 mm")))
pocket2 = doc.addObject("PartDesign::Pocket", "Pocket001")
body.addObject(pocket2)
pocket2.Profile = sketch3
pocket2.Length = Q("0.1 in")
pocket2.Reversed = True

doc.recompute()
